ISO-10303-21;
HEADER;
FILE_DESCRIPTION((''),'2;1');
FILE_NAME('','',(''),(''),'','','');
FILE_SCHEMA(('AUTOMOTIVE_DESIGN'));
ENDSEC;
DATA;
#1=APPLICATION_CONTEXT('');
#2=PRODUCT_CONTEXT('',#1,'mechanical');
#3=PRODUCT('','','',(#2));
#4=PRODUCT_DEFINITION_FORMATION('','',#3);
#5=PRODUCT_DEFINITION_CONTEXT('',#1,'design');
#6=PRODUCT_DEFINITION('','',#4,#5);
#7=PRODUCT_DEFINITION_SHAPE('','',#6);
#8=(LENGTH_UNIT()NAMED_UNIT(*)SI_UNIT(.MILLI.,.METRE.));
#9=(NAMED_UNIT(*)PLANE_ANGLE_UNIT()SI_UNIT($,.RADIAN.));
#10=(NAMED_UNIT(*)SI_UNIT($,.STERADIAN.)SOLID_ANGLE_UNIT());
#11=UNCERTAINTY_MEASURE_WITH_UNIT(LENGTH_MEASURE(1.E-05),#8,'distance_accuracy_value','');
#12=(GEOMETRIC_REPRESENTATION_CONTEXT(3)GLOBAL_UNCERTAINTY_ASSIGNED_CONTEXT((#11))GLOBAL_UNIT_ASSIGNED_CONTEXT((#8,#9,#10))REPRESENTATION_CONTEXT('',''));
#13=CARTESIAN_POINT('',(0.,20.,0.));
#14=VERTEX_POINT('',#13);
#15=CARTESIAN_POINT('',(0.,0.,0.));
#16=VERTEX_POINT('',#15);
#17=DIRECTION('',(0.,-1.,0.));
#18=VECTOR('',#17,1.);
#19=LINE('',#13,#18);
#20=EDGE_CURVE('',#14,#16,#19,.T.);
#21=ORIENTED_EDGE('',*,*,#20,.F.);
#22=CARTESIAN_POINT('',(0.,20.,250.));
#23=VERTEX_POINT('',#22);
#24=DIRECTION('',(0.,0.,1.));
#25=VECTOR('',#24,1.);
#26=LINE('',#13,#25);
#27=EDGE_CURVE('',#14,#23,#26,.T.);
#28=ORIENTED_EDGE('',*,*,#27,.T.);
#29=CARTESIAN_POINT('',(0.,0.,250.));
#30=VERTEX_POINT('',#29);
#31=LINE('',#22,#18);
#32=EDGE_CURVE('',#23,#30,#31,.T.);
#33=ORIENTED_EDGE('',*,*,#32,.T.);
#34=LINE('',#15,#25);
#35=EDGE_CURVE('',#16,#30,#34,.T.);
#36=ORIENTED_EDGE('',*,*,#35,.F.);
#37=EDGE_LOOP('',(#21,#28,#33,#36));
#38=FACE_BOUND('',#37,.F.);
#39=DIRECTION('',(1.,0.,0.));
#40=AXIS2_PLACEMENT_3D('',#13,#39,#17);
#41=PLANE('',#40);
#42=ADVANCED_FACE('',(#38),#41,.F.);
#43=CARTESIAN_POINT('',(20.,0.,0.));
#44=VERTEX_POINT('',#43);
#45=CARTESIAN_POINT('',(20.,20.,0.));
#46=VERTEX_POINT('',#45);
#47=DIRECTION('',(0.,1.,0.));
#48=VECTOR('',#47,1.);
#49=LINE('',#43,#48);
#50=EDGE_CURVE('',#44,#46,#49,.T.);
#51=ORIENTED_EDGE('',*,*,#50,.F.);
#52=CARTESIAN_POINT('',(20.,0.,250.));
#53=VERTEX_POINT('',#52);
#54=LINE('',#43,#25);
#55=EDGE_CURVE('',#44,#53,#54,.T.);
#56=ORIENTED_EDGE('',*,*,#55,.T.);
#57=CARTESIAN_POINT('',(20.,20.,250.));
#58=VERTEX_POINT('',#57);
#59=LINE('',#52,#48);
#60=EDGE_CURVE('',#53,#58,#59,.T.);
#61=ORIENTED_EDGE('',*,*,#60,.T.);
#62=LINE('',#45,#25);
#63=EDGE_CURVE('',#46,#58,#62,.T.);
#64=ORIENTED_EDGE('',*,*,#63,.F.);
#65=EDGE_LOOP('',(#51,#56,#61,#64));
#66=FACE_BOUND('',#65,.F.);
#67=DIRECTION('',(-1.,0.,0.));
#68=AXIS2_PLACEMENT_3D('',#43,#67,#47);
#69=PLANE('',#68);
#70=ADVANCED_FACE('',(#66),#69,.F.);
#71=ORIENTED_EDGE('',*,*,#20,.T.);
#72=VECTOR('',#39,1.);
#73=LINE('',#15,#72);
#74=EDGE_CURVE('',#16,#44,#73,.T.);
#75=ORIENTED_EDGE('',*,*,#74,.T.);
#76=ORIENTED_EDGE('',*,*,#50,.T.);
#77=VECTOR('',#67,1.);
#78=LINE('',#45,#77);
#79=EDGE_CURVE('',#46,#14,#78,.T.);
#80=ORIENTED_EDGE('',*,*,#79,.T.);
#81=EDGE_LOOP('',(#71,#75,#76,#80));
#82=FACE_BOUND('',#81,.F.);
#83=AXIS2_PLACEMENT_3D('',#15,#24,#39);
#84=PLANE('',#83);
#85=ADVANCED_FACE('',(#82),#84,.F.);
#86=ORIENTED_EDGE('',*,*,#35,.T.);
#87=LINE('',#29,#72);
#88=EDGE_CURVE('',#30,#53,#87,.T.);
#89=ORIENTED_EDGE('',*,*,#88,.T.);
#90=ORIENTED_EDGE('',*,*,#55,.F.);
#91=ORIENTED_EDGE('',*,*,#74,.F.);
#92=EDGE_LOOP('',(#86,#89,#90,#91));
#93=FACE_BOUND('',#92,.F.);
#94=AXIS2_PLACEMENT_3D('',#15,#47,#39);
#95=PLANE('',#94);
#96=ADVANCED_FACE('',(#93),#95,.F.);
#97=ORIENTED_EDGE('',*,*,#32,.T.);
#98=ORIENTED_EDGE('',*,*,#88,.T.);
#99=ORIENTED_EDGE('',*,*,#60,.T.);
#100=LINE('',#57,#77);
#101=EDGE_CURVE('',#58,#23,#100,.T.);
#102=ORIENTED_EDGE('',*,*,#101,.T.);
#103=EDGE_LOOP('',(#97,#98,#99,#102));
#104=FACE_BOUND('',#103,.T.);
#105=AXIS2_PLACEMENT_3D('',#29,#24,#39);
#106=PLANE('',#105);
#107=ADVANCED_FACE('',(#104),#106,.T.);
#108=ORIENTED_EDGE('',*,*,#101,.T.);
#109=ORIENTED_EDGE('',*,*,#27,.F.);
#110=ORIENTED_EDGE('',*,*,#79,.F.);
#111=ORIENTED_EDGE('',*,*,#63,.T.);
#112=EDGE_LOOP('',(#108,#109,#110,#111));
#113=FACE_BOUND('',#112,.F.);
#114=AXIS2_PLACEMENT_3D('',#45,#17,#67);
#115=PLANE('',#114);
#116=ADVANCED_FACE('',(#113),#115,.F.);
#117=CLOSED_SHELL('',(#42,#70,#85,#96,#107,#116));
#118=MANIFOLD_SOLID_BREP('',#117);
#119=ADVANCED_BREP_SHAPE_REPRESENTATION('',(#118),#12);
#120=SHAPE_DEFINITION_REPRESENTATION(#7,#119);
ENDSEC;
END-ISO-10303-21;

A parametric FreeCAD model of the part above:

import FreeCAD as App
import Part
import Sketcher
from FreeCAD import Vector
Q = App.Units.Quantity

doc = App.newDocument("Part")
body = doc.addObject("PartDesign::Body", "Body")

# Sketch on XY plane
sketch1 = body.newObject("Sketcher::SketchObject", "Sketch")
sketch1.AttachmentSupport = (doc.getObject("XY_Plane"), [""])
sketch1.MapMode = "FlatFace"
sketch1.addGeometry(Part.LineSegment(Vector(0, 20, 0), Vector(0, 0, 0)), False)
sketch1.addGeometry(Part.LineSegment(Vector(0, 0, 0), Vector(20, 0, 0)), False)
sketch1.addGeometry(Part.LineSegment(Vector(20, 0, 0), Vector(20, 20, 0)), False)
sketch1.addGeometry(Part.LineSegment(Vector(20, 20, 0), Vector(0, 20, 0)), False)
sketch1.addConstraint(Sketcher.Constraint("Coincident", 0, 2, 1, 1))
sketch1.addConstraint(Sketcher.Constraint("Coincident", 1, 2, 2, 1))
sketch1.addConstraint(Sketcher.Constraint("Coincident", 2, 2, 3, 1))
sketch1.addConstraint(Sketcher.Constraint("Coincident", 3, 2, 0, 1))
sketch1.addConstraint(Sketcher.Constraint("Vertical", 0))
sketch1.addConstraint(Sketcher.Constraint("Horizontal", 1))
sketch1.addConstraint(Sketcher.Constraint("Vertical", 2))
sketch1.addConstraint(Sketcher.Constraint("Horizontal", 3))
sketch1.addConstraint(Sketcher.Constraint("Coincident", 0, 2, -1, 1))
sketch1.addConstraint(Sketcher.Constraint("Equal", 3, 0))
sketch1.addConstraint(Sketcher.Constraint("DistanceX", 1, 1, 1, 2, Q("20 mm")))
pad1 = body.newObject("PartDesign::Pad", "Pad")
pad1.Profile = sketch1
pad1.Length = 250

doc.recompute()
